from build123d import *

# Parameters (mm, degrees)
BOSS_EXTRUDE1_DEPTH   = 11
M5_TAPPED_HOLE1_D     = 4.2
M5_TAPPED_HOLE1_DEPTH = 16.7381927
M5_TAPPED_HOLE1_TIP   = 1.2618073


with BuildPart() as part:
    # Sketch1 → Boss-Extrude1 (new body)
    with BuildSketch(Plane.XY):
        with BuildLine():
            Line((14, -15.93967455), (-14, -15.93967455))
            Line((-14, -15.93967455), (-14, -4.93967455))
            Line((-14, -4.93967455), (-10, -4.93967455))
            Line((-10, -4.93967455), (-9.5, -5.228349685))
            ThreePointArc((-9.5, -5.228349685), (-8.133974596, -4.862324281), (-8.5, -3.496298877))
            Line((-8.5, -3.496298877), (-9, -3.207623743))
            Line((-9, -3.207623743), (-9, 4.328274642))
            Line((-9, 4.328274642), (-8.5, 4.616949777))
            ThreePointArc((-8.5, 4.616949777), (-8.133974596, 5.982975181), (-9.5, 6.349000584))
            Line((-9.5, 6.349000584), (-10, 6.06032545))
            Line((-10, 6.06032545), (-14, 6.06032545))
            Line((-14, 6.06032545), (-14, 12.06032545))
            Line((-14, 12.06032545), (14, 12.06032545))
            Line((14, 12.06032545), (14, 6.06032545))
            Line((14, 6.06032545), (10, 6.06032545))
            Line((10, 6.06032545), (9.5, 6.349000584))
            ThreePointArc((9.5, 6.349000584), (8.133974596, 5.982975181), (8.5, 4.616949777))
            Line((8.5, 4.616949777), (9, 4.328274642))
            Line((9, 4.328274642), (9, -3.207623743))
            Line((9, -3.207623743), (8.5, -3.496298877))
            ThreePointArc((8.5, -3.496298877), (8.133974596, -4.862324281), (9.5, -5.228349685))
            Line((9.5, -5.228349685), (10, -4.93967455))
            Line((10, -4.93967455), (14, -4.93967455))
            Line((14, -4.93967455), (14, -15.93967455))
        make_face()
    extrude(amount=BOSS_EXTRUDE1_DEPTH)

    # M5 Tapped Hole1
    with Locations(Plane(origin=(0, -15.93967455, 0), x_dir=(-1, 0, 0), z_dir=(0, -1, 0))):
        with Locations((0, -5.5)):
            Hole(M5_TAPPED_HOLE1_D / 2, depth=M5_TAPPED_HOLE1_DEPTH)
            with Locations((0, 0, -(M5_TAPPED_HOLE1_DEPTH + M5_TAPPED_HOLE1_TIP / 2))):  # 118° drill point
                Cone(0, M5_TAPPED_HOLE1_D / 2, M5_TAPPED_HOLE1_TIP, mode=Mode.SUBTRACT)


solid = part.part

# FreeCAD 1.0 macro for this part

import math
import FreeCAD as App
import Part
import Sketcher
from FreeCAD import Vector
Q = App.Units.Quantity

doc = App.newDocument("Part")
params = doc.addObject("Spreadsheet::Sheet", "Params")
for row, (alias, value) in enumerate([
    ("sketch1_radius", "1 mm"),
    ("sketch1_width", "28 mm"),
    ("sketch1_width2", "4 mm"),
    ("sketch1_height", "11 mm"),
    ("sketch1_height2", "6 mm"),
    ("pad1_length", "11 mm"),
    ("sketch2_diameter", "4.2 mm"),
    ("hole_diameter", "4.2 mm"),
    ("hole_depth", "16.738193 mm"),
], start=1):
    params.set(f"A{row}", alias)
    params.set(f"B{row}", "=" + value)
    params.setAlias(f"B{row}", alias)

body = doc.addObject("PartDesign::Body", "Body")

# Sketch on XY plane
sketch1 = doc.addObject("Sketcher::SketchObject", "Sketch")
body.addObject(sketch1)
sketch1.AttachmentSupport = (doc.XY_Plane, [""])
sketch1.MapMode = "FlatFace"
sketch1.addGeometry(Part.LineSegment(Vector(-14, -15.9, 0), Vector(14, -15.9, 0)), False)
sketch1.addGeometry(Part.LineSegment(Vector(14, -15.9, 0), Vector(14, -4.9, 0)), False)
sketch1.addGeometry(Part.LineSegment(Vector(14, -4.9, 0), Vector(10, -4.9, 0)), False)
sketch1.addGeometry(Part.LineSegment(Vector(10, -4.9, 0), Vector(9.5, -5.2, 0)), False)
sketch1.addGeometry(Part.ArcOfCircle(Part.Circle(Vector(9, -4.4, 0), Vector(0, 0, 1), 1), math.radians(120), math.radians(300)), False)
sketch1.addGeometry(Part.LineSegment(Vector(8.5, -3.5, 0), Vector(9, -3.2, 0)), False)
sketch1.addGeometry(Part.LineSegment(Vector(9, -3.2, 0), Vector(9, 4.3, 0)), False)
sketch1.addGeometry(Part.LineSegment(Vector(9, 4.3, 0), Vector(8.5, 4.6, 0)), False)
sketch1.addGeometry(Part.ArcOfCircle(Part.Circle(Vector(9, 5.5, 0), Vector(0, 0, 1), 1), math.radians(60), math.radians(240)), False)
sketch1.addGeometry(Part.LineSegment(Vector(9.5, 6.3, 0), Vector(10, 6.1, 0)), False)
sketch1.addGeometry(Part.LineSegment(Vector(10, 6.1, 0), Vector(14, 6.1, 0)), False)
sketch1.addGeometry(Part.LineSegment(Vector(14, 6.1, 0), Vector(14, 12.1, 0)), False)
sketch1.addGeometry(Part.LineSegment(Vector(14, 12.1, 0), Vector(-14, 12.1, 0)), False)
sketch1.addGeometry(Part.LineSegment(Vector(-14, 12.1, 0), Vector(-14, 6.1, 0)), False)
sketch1.addGeometry(Part.LineSegment(Vector(-14, 6.1, 0), Vector(-10, 6.1, 0)), False)
sketch1.addGeometry(Part.LineSegment(Vector(-10, 6.1, 0), Vector(-9.5, 6.3, 0)), False)
sketch1.addGeometry(Part.ArcOfCircle(Part.Circle(Vector(-9, 5.5, 0), Vector(0, 0, 1), 1), math.radians(-60), math.radians(120)), False)
sketch1.addGeometry(Part.LineSegment(Vector(-8.5, 4.6, 0), Vector(-9, 4.3, 0)), False)
sketch1.addGeometry(Part.LineSegment(Vector(-9, 4.3, 0), Vector(-9, -3.2, 0)), False)
sketch1.addGeometry(Part.LineSegment(Vector(-9, -3.2, 0), Vector(-8.5, -3.5, 0)), False)
sketch1.addGeometry(Part.ArcOfCircle(Part.Circle(Vector(-9, -4.4, 0), Vector(0, 0, 1), 1), math.radians(-120), math.radians(60)), False)
sketch1.addGeometry(Part.LineSegment(Vector(-9.5, -5.2, 0), Vector(-10, -4.9, 0)), False)
sketch1.addGeometry(Part.LineSegment(Vector(-10, -4.9, 0), Vector(-14, -4.9, 0)), False)
sketch1.addGeometry(Part.LineSegment(Vector(-14, -4.9, 0), Vector(-14, -15.9, 0)), False)
sketch1.addConstraint(Sketcher.Constraint("Coincident", 0, 2, 1, 1))
sketch1.addConstraint(Sketcher.Constraint("Coincident", 1, 2, 2, 1))
sketch1.addConstraint(Sketcher.Constraint("Coincident", 2, 2, 3, 1))
sketch1.addConstraint(Sketcher.Constraint("Tangent", 3, 2, 4, 2))
sketch1.addConstraint(Sketcher.Constraint("Tangent", 4, 1, 5, 1))
sketch1.addConstraint(Sketcher.Constraint("Coincident", 5, 2, 6, 1))
sketch1.addConstraint(Sketcher.Constraint("Coincident", 6, 2, 7, 1))
sketch1.addConstraint(Sketcher.Constraint("Tangent", 7, 2, 8, 2))
sketch1.addConstraint(Sketcher.Constraint("Tangent", 8, 1, 9, 1))
sketch1.addConstraint(Sketcher.Constraint("Coincident", 9, 2, 10, 1))
sketch1.addConstraint(Sketcher.Constraint("Coincident", 10, 2, 11, 1))
sketch1.addConstraint(Sketcher.Constraint("Coincident", 11, 2, 12, 1))
sketch1.addConstraint(Sketcher.Constraint("Coincident", 12, 2, 13, 1))
sketch1.addConstraint(Sketcher.Constraint("Coincident", 13, 2, 14, 1))
sketch1.addConstraint(Sketcher.Constraint("Coincident", 14, 2, 15, 1))
sketch1.addConstraint(Sketcher.Constraint("Tangent", 15, 2, 16, 2))
sketch1.addConstraint(Sketcher.Constraint("Tangent", 16, 1, 17, 1))
sketch1.addConstraint(Sketcher.Constraint("Coincident", 17, 2, 18, 1))
sketch1.addConstraint(Sketcher.Constraint("Coincident", 18, 2, 19, 1))
sketch1.addConstraint(Sketcher.Constraint("Tangent", 19, 2, 20, 2))
sketch1.addConstraint(Sketcher.Constraint("Tangent", 20, 1, 21, 1))
sketch1.addConstraint(Sketcher.Constraint("Coincident", 21, 2, 22, 1))
sketch1.addConstraint(Sketcher.Constraint("Coincident", 22, 2, 23, 1))
sketch1.addConstraint(Sketcher.Constraint("Coincident", 23, 2, 0, 1))
sketch1.addConstraint(Sketcher.Constraint("Horizontal", 0))
sketch1.addConstraint(Sketcher.Constraint("Vertical", 1))
sketch1.addConstraint(Sketcher.Constraint("Horizontal", 2))
sketch1.addConstraint(Sketcher.Constraint("Vertical", 6))
sketch1.addConstraint(Sketcher.Constraint("Horizontal", 10))
sketch1.addConstraint(Sketcher.Constraint("Vertical", 11))
sketch1.addConstraint(Sketcher.Constraint("Horizontal", 12))
sketch1.addConstraint(Sketcher.Constraint("Vertical", 13))
sketch1.addConstraint(Sketcher.Constraint("Horizontal", 14))
sketch1.addConstraint(Sketcher.Constraint("Vertical", 18))
sketch1.addConstraint(Sketcher.Constraint("Horizontal", 22))
sketch1.addConstraint(Sketcher.Constraint("Vertical", 23))
sketch1.addConstraint(Sketcher.Constraint("Equal", 4, 8))
sketch1.addConstraint(Sketcher.Constraint("Equal", 8, 16))
sketch1.addConstraint(Sketcher.Constraint("Equal", 16, 20))
sketch1.addConstraint(Sketcher.Constraint("Symmetric", 8, 3, 16, 3, -2))
sketch1.addConstraint(Sketcher.Constraint("Symmetric", 4, 3, 20, 3, -2))
sketch1.addConstraint(Sketcher.Constraint("Symmetric", 10, 2, 13, 2, -2))
sketch1.addConstraint(Sketcher.Constraint("Symmetric", 6, 2, 17, 2, -2))
sketch1.addConstraint(Sketcher.Constraint("Symmetric", 2, 2, 21, 2, -2))
sketch1.addConstraint(Sketcher.Constraint("Parallel", 3, 5))
sketch1.addConstraint(Sketcher.Constraint("Parallel", 7, 9))
sketch1.addConstraint(Sketcher.Constraint("Parallel", 5, 15))
sketch1.addConstraint(Sketcher.Constraint("Parallel", 15, 17))
sketch1.addConstraint(Sketcher.Constraint("Parallel", 9, 19))
sketch1.addConstraint(Sketcher.Constraint("Vertical", 4, 3, 8, 3))
sketch1.addConstraint(Sketcher.Constraint("Vertical", 8, 3, 5, 2))
sketch1.addConstraint(Sketcher.Constraint("Vertical", 2, 2, 9, 2))
sketch1.addConstraint(Sketcher.Constraint("Vertical", 1, 2, 10, 2))
sketch1.addConstraint(Sketcher.Constraint("Vertical", 13, 2, 22, 2))
sketch1.addConstraint(Sketcher.Constraint("Equal", 3, 5))
sketch1.addConstraint(Sketcher.Constraint("Radius", 4, 1.0))
sketch1.addConstraint(Sketcher.Constraint("DistanceX", 0, 1, 0, 2, 28.0))
sketch1.addConstraint(Sketcher.Constraint("DistanceX", 2, 2, 2, 1, 4.0))
sketch1.addConstraint(Sketcher.Constraint("DistanceY", 1, 1, 1, 2, 11.0))
sketch1.addConstraint(Sketcher.Constraint("DistanceY", 11, 1, 11, 2, 6.0))
sketch1.addConstraint(Sketcher.Constraint("Angle", 3, Q("-150 deg")))
sketch1.addConstraint(Sketcher.Constraint("DistanceY", 6, 1, 6, 2, 7.535898))
sketch1.addConstraint(Sketcher.Constraint("DistanceY", -1, 1, 8, 1, 6.349001))
sketch1.setExpression("Constraints[55]", "Params.sketch1_radius")
sketch1.setExpression("Constraints[56]", "Params.sketch1_width")
sketch1.setExpression("Constraints[57]", "Params.sketch1_width2")
sketch1.setExpression("Constraints[58]", "Params.sketch1_height")
sketch1.setExpression("Constraints[59]", "Params.sketch1_height2")
pad1 = doc.addObject("PartDesign::Pad", "Pad")
body.addObject(pad1)
pad1.Profile = sketch1
pad1.setExpression("Length", "Params.pad1_length")

# Sketch on XZ plane
sketch2 = doc.addObject("Sketcher::SketchObject", "Sketch001")
body.addObject(sketch2)
sketch2.AttachmentSupport = (doc.XZ_Plane, [""])
sketch2.MapMode = "FlatFace"
sketch2.AttachmentOffset = App.Placement(Vector(0, 0, 15.939675), App.Rotation())
sketch2.addGeometry(Part.Circle(Vector(0, 5.5, 0), Vector(0, 0, 1), 2.1), False)
sketch2.addConstraint(Sketcher.Constraint("PointOnObject", 0, 3, -2))
sketch2.addConstraint(Sketcher.Constraint("Diameter", 0, 4.2))
sketch2.addConstraint(Sketcher.Constraint("DistanceY", -1, 1, 0, 3, 5.5))
sketch2.setExpression("Constraints[1]", "Params.sketch2_diameter")
doc.recompute()
hole = doc.addObject("PartDesign::Hole", "Hole")
body.addObject(hole)
hole.Profile = sketch2
hole.ThreadType = "None"
hole.setExpression("Diameter", "Params.hole_diameter")
hole.DepthType = "Dimension"
hole.setExpression("Depth", "Params.hole_depth")
hole.DrillPoint = "Angled"
hole.DrillPointAngle = 118

doc.recompute()
